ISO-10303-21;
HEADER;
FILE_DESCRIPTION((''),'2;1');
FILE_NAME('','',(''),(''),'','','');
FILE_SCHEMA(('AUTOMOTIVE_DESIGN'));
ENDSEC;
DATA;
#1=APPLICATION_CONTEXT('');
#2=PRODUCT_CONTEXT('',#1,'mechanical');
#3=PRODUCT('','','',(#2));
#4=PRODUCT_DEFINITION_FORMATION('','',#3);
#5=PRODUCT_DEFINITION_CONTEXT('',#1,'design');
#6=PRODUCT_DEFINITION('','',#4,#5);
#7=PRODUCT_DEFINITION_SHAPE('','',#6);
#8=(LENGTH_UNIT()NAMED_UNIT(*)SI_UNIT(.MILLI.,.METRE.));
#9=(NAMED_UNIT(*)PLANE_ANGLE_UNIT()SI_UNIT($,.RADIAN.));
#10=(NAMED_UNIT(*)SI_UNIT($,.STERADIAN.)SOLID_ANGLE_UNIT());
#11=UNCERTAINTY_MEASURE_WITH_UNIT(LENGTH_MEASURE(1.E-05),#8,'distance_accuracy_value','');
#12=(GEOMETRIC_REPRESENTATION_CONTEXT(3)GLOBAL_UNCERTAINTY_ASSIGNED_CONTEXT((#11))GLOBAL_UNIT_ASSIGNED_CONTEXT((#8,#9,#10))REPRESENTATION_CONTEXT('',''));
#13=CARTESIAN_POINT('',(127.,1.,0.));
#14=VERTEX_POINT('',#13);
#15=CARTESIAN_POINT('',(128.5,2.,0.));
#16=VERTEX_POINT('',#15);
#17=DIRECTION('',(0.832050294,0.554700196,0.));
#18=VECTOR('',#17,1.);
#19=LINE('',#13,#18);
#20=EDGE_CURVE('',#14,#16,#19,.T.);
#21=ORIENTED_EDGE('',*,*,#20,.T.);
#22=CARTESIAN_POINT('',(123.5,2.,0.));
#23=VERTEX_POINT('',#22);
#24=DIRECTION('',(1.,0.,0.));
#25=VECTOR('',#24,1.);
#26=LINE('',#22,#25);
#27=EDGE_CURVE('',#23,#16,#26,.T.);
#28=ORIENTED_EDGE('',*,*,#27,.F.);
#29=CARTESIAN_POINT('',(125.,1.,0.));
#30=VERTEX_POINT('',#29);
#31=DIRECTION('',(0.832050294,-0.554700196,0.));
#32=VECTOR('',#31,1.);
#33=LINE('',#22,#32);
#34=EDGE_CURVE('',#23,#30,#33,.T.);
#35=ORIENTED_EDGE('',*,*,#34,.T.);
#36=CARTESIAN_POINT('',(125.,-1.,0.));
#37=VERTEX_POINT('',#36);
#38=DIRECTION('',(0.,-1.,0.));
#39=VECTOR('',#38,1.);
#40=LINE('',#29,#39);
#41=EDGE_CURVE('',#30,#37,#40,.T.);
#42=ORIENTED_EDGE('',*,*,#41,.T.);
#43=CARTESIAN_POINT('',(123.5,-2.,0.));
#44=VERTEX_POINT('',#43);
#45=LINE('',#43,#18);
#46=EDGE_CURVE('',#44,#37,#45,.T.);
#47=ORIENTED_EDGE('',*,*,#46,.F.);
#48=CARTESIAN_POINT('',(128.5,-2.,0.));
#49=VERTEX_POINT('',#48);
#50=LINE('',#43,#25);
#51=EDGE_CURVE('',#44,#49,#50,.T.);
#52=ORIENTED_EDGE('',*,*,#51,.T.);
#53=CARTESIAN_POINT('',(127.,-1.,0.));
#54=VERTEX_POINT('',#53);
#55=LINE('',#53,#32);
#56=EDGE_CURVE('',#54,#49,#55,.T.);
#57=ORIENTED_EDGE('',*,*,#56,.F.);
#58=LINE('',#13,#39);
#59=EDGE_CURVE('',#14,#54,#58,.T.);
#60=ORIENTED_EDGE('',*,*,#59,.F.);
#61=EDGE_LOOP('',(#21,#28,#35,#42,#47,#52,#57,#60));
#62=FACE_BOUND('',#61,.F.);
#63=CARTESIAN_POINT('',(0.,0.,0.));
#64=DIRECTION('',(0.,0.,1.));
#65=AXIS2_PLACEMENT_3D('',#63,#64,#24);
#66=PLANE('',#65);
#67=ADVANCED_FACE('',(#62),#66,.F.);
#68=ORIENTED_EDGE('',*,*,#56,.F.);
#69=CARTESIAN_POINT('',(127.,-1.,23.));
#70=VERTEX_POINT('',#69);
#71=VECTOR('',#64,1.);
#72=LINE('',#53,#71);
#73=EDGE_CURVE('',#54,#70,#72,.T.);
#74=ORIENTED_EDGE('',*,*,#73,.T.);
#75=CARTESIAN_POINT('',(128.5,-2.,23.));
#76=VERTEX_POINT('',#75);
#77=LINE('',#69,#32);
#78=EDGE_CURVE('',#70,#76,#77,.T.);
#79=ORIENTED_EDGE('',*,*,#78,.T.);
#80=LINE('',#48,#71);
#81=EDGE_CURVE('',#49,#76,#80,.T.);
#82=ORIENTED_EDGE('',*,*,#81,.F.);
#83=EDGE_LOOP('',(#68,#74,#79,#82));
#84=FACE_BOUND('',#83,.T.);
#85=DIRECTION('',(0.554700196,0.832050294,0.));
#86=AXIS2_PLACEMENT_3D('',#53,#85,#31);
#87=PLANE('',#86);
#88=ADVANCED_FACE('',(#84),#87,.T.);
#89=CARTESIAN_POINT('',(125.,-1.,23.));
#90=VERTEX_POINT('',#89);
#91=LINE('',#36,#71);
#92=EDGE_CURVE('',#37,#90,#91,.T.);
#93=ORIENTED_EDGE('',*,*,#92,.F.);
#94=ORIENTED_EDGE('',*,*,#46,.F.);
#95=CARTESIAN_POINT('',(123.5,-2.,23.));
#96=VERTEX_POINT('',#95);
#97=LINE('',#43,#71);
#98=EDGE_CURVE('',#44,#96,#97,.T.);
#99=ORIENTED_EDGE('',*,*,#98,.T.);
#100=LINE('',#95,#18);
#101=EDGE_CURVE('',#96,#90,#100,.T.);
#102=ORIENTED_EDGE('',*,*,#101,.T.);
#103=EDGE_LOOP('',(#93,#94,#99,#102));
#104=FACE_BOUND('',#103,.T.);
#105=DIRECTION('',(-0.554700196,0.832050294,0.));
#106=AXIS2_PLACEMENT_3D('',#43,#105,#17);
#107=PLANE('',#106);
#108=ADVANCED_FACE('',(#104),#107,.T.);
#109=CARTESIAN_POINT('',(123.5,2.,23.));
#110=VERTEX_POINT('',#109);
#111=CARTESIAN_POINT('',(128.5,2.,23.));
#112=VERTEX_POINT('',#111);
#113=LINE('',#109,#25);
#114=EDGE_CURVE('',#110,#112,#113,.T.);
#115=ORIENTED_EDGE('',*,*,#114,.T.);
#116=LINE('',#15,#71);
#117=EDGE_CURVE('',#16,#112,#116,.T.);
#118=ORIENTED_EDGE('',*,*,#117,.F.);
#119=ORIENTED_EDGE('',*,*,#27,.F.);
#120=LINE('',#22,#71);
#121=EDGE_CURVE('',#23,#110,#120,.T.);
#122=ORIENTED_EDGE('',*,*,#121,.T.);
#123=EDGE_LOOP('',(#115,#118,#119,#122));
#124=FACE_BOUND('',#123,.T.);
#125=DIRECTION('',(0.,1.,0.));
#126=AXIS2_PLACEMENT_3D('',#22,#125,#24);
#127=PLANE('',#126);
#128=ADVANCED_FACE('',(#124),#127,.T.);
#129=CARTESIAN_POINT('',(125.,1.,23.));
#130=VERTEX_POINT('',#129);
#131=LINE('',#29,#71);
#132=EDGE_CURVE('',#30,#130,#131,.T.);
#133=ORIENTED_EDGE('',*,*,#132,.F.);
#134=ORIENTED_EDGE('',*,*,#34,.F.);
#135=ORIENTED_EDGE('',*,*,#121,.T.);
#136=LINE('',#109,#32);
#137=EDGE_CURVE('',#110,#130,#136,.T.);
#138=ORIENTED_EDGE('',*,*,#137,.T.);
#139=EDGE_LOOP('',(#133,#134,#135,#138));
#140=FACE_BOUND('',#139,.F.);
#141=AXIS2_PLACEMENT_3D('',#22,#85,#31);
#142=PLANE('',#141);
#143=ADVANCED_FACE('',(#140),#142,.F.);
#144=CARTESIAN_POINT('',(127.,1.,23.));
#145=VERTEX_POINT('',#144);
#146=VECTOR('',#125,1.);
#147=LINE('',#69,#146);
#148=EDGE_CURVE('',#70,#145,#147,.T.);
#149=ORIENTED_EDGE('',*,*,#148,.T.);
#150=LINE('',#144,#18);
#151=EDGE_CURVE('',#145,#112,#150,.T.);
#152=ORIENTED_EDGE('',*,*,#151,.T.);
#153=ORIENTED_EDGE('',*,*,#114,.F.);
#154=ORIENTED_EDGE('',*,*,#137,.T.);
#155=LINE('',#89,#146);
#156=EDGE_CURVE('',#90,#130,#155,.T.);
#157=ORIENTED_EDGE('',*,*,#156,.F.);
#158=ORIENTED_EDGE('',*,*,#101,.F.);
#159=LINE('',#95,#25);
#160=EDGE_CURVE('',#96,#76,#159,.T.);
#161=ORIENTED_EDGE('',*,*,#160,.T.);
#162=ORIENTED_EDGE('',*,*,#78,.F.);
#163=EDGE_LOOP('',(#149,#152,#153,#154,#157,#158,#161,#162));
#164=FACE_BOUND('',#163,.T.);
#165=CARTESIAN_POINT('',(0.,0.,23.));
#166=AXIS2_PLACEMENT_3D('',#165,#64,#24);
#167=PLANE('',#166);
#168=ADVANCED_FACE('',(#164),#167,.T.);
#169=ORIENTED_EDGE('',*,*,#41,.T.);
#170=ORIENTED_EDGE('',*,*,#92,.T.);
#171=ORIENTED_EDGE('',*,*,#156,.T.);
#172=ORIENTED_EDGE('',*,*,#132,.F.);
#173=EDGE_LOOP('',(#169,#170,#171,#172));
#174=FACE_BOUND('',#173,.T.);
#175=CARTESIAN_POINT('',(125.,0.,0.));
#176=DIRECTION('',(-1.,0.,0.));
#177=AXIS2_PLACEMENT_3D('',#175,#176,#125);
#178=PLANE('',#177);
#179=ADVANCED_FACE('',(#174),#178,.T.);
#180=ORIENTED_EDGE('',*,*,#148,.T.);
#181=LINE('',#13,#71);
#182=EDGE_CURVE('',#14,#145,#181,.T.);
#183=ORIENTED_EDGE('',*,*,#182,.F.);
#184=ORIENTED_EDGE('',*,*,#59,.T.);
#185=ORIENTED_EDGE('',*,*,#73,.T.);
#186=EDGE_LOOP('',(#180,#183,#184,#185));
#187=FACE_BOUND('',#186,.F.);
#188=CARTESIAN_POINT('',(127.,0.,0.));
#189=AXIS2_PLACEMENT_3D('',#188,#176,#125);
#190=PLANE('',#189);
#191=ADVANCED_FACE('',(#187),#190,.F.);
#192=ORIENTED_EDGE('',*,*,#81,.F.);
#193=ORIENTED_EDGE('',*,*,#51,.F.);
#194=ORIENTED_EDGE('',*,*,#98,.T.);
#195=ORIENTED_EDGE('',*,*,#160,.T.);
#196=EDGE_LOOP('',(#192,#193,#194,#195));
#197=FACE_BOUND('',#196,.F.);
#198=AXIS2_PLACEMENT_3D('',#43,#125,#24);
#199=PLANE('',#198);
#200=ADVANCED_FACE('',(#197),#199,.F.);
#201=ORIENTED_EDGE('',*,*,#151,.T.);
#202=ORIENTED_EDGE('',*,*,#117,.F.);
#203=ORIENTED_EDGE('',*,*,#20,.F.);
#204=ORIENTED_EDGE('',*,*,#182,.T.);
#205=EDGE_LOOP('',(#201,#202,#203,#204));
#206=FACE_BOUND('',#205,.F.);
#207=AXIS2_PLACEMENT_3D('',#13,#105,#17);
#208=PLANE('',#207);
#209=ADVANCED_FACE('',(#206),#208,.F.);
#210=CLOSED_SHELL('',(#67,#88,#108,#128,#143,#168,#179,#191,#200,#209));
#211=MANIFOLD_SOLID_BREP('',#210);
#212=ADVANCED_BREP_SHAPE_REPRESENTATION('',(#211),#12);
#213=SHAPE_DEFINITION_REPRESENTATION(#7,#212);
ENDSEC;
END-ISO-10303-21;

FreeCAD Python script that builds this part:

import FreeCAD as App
import Part
import Sketcher
from FreeCAD import Vector
Q = App.Units.Quantity


def add_polygon(sketch, points):
    """Adds a closed chain of lines whose ends are joined by coincident constraints."""
    first, n = sketch.GeometryCount, len(points)
    for a, b in zip(points, points[1:] + points[:1]):
        sketch.addGeometry(Part.LineSegment(App.Vector(*a, 0), App.Vector(*b, 0)), False)
    for i in range(n):
        sketch.addConstraint(Sketcher.Constraint("Coincident", first + i, 2, first + (i + 1) % n, 1))

doc = App.newDocument("Part")
body = doc.addObject("PartDesign::Body", "Body")

# Sketch on XY plane
sketch1 = body.newObject("Sketcher::SketchObject", "Sketch")
sketch1.AttachmentSupport = (doc.getObject("XY_Plane"), [""])
sketch1.MapMode = "FlatFace"
add_polygon(sketch1, [(125, 1), (125, -1), (123.5, -2), (128.5, -2), (127, -1), (127, 1), (128.5, 2), (123.5, 2)])  # lines 0-7
sketch1.addConstraint(Sketcher.Constraint("Vertical", 0))
sketch1.addConstraint(Sketcher.Constraint("Horizontal", 2))
sketch1.addConstraint(Sketcher.Constraint("Vertical", 4))
sketch1.addConstraint(Sketcher.Constraint("Horizontal", 6))
sketch1.addConstraint(Sketcher.Constraint("Symmetric", 2, 2, 5, 2, -1))
sketch1.addConstraint(Sketcher.Constraint("Parallel", 1, 5))
sketch1.addConstraint(Sketcher.Constraint("Parallel", 3, 7))
sketch1.addConstraint(Sketcher.Constraint("Horizontal", 0, 2, 3, 2))
sketch1.addConstraint(Sketcher.Constraint("Horizontal", 4, 2, 7, 2))
sketch1.addConstraint(Sketcher.Constraint("Vertical", 1, 2, 6, 2))
sketch1.addConstraint(Sketcher.Constraint("DistanceX", 2, 1, 2, 2, Q("5 mm")))
sketch1.addConstraint(Sketcher.Constraint("DistanceY", 0, 2, 0, 1, Q("2 mm")))
sketch1.addConstraint(Sketcher.Constraint("DistanceY", 1, 2, -1, 1, Q("2 mm")))
sketch1.addConstraint(Sketcher.Constraint("DistanceX", 0, 2, 3, 2, Q("2 mm")))
sketch1.addConstraint(Sketcher.Constraint("DistanceX", -1, 1, 0, 2, Q("125 mm")))
pad1 = body.newObject("PartDesign::Pad", "Pad")
pad1.Profile = sketch1
pad1.Length = 23

doc.recompute()
